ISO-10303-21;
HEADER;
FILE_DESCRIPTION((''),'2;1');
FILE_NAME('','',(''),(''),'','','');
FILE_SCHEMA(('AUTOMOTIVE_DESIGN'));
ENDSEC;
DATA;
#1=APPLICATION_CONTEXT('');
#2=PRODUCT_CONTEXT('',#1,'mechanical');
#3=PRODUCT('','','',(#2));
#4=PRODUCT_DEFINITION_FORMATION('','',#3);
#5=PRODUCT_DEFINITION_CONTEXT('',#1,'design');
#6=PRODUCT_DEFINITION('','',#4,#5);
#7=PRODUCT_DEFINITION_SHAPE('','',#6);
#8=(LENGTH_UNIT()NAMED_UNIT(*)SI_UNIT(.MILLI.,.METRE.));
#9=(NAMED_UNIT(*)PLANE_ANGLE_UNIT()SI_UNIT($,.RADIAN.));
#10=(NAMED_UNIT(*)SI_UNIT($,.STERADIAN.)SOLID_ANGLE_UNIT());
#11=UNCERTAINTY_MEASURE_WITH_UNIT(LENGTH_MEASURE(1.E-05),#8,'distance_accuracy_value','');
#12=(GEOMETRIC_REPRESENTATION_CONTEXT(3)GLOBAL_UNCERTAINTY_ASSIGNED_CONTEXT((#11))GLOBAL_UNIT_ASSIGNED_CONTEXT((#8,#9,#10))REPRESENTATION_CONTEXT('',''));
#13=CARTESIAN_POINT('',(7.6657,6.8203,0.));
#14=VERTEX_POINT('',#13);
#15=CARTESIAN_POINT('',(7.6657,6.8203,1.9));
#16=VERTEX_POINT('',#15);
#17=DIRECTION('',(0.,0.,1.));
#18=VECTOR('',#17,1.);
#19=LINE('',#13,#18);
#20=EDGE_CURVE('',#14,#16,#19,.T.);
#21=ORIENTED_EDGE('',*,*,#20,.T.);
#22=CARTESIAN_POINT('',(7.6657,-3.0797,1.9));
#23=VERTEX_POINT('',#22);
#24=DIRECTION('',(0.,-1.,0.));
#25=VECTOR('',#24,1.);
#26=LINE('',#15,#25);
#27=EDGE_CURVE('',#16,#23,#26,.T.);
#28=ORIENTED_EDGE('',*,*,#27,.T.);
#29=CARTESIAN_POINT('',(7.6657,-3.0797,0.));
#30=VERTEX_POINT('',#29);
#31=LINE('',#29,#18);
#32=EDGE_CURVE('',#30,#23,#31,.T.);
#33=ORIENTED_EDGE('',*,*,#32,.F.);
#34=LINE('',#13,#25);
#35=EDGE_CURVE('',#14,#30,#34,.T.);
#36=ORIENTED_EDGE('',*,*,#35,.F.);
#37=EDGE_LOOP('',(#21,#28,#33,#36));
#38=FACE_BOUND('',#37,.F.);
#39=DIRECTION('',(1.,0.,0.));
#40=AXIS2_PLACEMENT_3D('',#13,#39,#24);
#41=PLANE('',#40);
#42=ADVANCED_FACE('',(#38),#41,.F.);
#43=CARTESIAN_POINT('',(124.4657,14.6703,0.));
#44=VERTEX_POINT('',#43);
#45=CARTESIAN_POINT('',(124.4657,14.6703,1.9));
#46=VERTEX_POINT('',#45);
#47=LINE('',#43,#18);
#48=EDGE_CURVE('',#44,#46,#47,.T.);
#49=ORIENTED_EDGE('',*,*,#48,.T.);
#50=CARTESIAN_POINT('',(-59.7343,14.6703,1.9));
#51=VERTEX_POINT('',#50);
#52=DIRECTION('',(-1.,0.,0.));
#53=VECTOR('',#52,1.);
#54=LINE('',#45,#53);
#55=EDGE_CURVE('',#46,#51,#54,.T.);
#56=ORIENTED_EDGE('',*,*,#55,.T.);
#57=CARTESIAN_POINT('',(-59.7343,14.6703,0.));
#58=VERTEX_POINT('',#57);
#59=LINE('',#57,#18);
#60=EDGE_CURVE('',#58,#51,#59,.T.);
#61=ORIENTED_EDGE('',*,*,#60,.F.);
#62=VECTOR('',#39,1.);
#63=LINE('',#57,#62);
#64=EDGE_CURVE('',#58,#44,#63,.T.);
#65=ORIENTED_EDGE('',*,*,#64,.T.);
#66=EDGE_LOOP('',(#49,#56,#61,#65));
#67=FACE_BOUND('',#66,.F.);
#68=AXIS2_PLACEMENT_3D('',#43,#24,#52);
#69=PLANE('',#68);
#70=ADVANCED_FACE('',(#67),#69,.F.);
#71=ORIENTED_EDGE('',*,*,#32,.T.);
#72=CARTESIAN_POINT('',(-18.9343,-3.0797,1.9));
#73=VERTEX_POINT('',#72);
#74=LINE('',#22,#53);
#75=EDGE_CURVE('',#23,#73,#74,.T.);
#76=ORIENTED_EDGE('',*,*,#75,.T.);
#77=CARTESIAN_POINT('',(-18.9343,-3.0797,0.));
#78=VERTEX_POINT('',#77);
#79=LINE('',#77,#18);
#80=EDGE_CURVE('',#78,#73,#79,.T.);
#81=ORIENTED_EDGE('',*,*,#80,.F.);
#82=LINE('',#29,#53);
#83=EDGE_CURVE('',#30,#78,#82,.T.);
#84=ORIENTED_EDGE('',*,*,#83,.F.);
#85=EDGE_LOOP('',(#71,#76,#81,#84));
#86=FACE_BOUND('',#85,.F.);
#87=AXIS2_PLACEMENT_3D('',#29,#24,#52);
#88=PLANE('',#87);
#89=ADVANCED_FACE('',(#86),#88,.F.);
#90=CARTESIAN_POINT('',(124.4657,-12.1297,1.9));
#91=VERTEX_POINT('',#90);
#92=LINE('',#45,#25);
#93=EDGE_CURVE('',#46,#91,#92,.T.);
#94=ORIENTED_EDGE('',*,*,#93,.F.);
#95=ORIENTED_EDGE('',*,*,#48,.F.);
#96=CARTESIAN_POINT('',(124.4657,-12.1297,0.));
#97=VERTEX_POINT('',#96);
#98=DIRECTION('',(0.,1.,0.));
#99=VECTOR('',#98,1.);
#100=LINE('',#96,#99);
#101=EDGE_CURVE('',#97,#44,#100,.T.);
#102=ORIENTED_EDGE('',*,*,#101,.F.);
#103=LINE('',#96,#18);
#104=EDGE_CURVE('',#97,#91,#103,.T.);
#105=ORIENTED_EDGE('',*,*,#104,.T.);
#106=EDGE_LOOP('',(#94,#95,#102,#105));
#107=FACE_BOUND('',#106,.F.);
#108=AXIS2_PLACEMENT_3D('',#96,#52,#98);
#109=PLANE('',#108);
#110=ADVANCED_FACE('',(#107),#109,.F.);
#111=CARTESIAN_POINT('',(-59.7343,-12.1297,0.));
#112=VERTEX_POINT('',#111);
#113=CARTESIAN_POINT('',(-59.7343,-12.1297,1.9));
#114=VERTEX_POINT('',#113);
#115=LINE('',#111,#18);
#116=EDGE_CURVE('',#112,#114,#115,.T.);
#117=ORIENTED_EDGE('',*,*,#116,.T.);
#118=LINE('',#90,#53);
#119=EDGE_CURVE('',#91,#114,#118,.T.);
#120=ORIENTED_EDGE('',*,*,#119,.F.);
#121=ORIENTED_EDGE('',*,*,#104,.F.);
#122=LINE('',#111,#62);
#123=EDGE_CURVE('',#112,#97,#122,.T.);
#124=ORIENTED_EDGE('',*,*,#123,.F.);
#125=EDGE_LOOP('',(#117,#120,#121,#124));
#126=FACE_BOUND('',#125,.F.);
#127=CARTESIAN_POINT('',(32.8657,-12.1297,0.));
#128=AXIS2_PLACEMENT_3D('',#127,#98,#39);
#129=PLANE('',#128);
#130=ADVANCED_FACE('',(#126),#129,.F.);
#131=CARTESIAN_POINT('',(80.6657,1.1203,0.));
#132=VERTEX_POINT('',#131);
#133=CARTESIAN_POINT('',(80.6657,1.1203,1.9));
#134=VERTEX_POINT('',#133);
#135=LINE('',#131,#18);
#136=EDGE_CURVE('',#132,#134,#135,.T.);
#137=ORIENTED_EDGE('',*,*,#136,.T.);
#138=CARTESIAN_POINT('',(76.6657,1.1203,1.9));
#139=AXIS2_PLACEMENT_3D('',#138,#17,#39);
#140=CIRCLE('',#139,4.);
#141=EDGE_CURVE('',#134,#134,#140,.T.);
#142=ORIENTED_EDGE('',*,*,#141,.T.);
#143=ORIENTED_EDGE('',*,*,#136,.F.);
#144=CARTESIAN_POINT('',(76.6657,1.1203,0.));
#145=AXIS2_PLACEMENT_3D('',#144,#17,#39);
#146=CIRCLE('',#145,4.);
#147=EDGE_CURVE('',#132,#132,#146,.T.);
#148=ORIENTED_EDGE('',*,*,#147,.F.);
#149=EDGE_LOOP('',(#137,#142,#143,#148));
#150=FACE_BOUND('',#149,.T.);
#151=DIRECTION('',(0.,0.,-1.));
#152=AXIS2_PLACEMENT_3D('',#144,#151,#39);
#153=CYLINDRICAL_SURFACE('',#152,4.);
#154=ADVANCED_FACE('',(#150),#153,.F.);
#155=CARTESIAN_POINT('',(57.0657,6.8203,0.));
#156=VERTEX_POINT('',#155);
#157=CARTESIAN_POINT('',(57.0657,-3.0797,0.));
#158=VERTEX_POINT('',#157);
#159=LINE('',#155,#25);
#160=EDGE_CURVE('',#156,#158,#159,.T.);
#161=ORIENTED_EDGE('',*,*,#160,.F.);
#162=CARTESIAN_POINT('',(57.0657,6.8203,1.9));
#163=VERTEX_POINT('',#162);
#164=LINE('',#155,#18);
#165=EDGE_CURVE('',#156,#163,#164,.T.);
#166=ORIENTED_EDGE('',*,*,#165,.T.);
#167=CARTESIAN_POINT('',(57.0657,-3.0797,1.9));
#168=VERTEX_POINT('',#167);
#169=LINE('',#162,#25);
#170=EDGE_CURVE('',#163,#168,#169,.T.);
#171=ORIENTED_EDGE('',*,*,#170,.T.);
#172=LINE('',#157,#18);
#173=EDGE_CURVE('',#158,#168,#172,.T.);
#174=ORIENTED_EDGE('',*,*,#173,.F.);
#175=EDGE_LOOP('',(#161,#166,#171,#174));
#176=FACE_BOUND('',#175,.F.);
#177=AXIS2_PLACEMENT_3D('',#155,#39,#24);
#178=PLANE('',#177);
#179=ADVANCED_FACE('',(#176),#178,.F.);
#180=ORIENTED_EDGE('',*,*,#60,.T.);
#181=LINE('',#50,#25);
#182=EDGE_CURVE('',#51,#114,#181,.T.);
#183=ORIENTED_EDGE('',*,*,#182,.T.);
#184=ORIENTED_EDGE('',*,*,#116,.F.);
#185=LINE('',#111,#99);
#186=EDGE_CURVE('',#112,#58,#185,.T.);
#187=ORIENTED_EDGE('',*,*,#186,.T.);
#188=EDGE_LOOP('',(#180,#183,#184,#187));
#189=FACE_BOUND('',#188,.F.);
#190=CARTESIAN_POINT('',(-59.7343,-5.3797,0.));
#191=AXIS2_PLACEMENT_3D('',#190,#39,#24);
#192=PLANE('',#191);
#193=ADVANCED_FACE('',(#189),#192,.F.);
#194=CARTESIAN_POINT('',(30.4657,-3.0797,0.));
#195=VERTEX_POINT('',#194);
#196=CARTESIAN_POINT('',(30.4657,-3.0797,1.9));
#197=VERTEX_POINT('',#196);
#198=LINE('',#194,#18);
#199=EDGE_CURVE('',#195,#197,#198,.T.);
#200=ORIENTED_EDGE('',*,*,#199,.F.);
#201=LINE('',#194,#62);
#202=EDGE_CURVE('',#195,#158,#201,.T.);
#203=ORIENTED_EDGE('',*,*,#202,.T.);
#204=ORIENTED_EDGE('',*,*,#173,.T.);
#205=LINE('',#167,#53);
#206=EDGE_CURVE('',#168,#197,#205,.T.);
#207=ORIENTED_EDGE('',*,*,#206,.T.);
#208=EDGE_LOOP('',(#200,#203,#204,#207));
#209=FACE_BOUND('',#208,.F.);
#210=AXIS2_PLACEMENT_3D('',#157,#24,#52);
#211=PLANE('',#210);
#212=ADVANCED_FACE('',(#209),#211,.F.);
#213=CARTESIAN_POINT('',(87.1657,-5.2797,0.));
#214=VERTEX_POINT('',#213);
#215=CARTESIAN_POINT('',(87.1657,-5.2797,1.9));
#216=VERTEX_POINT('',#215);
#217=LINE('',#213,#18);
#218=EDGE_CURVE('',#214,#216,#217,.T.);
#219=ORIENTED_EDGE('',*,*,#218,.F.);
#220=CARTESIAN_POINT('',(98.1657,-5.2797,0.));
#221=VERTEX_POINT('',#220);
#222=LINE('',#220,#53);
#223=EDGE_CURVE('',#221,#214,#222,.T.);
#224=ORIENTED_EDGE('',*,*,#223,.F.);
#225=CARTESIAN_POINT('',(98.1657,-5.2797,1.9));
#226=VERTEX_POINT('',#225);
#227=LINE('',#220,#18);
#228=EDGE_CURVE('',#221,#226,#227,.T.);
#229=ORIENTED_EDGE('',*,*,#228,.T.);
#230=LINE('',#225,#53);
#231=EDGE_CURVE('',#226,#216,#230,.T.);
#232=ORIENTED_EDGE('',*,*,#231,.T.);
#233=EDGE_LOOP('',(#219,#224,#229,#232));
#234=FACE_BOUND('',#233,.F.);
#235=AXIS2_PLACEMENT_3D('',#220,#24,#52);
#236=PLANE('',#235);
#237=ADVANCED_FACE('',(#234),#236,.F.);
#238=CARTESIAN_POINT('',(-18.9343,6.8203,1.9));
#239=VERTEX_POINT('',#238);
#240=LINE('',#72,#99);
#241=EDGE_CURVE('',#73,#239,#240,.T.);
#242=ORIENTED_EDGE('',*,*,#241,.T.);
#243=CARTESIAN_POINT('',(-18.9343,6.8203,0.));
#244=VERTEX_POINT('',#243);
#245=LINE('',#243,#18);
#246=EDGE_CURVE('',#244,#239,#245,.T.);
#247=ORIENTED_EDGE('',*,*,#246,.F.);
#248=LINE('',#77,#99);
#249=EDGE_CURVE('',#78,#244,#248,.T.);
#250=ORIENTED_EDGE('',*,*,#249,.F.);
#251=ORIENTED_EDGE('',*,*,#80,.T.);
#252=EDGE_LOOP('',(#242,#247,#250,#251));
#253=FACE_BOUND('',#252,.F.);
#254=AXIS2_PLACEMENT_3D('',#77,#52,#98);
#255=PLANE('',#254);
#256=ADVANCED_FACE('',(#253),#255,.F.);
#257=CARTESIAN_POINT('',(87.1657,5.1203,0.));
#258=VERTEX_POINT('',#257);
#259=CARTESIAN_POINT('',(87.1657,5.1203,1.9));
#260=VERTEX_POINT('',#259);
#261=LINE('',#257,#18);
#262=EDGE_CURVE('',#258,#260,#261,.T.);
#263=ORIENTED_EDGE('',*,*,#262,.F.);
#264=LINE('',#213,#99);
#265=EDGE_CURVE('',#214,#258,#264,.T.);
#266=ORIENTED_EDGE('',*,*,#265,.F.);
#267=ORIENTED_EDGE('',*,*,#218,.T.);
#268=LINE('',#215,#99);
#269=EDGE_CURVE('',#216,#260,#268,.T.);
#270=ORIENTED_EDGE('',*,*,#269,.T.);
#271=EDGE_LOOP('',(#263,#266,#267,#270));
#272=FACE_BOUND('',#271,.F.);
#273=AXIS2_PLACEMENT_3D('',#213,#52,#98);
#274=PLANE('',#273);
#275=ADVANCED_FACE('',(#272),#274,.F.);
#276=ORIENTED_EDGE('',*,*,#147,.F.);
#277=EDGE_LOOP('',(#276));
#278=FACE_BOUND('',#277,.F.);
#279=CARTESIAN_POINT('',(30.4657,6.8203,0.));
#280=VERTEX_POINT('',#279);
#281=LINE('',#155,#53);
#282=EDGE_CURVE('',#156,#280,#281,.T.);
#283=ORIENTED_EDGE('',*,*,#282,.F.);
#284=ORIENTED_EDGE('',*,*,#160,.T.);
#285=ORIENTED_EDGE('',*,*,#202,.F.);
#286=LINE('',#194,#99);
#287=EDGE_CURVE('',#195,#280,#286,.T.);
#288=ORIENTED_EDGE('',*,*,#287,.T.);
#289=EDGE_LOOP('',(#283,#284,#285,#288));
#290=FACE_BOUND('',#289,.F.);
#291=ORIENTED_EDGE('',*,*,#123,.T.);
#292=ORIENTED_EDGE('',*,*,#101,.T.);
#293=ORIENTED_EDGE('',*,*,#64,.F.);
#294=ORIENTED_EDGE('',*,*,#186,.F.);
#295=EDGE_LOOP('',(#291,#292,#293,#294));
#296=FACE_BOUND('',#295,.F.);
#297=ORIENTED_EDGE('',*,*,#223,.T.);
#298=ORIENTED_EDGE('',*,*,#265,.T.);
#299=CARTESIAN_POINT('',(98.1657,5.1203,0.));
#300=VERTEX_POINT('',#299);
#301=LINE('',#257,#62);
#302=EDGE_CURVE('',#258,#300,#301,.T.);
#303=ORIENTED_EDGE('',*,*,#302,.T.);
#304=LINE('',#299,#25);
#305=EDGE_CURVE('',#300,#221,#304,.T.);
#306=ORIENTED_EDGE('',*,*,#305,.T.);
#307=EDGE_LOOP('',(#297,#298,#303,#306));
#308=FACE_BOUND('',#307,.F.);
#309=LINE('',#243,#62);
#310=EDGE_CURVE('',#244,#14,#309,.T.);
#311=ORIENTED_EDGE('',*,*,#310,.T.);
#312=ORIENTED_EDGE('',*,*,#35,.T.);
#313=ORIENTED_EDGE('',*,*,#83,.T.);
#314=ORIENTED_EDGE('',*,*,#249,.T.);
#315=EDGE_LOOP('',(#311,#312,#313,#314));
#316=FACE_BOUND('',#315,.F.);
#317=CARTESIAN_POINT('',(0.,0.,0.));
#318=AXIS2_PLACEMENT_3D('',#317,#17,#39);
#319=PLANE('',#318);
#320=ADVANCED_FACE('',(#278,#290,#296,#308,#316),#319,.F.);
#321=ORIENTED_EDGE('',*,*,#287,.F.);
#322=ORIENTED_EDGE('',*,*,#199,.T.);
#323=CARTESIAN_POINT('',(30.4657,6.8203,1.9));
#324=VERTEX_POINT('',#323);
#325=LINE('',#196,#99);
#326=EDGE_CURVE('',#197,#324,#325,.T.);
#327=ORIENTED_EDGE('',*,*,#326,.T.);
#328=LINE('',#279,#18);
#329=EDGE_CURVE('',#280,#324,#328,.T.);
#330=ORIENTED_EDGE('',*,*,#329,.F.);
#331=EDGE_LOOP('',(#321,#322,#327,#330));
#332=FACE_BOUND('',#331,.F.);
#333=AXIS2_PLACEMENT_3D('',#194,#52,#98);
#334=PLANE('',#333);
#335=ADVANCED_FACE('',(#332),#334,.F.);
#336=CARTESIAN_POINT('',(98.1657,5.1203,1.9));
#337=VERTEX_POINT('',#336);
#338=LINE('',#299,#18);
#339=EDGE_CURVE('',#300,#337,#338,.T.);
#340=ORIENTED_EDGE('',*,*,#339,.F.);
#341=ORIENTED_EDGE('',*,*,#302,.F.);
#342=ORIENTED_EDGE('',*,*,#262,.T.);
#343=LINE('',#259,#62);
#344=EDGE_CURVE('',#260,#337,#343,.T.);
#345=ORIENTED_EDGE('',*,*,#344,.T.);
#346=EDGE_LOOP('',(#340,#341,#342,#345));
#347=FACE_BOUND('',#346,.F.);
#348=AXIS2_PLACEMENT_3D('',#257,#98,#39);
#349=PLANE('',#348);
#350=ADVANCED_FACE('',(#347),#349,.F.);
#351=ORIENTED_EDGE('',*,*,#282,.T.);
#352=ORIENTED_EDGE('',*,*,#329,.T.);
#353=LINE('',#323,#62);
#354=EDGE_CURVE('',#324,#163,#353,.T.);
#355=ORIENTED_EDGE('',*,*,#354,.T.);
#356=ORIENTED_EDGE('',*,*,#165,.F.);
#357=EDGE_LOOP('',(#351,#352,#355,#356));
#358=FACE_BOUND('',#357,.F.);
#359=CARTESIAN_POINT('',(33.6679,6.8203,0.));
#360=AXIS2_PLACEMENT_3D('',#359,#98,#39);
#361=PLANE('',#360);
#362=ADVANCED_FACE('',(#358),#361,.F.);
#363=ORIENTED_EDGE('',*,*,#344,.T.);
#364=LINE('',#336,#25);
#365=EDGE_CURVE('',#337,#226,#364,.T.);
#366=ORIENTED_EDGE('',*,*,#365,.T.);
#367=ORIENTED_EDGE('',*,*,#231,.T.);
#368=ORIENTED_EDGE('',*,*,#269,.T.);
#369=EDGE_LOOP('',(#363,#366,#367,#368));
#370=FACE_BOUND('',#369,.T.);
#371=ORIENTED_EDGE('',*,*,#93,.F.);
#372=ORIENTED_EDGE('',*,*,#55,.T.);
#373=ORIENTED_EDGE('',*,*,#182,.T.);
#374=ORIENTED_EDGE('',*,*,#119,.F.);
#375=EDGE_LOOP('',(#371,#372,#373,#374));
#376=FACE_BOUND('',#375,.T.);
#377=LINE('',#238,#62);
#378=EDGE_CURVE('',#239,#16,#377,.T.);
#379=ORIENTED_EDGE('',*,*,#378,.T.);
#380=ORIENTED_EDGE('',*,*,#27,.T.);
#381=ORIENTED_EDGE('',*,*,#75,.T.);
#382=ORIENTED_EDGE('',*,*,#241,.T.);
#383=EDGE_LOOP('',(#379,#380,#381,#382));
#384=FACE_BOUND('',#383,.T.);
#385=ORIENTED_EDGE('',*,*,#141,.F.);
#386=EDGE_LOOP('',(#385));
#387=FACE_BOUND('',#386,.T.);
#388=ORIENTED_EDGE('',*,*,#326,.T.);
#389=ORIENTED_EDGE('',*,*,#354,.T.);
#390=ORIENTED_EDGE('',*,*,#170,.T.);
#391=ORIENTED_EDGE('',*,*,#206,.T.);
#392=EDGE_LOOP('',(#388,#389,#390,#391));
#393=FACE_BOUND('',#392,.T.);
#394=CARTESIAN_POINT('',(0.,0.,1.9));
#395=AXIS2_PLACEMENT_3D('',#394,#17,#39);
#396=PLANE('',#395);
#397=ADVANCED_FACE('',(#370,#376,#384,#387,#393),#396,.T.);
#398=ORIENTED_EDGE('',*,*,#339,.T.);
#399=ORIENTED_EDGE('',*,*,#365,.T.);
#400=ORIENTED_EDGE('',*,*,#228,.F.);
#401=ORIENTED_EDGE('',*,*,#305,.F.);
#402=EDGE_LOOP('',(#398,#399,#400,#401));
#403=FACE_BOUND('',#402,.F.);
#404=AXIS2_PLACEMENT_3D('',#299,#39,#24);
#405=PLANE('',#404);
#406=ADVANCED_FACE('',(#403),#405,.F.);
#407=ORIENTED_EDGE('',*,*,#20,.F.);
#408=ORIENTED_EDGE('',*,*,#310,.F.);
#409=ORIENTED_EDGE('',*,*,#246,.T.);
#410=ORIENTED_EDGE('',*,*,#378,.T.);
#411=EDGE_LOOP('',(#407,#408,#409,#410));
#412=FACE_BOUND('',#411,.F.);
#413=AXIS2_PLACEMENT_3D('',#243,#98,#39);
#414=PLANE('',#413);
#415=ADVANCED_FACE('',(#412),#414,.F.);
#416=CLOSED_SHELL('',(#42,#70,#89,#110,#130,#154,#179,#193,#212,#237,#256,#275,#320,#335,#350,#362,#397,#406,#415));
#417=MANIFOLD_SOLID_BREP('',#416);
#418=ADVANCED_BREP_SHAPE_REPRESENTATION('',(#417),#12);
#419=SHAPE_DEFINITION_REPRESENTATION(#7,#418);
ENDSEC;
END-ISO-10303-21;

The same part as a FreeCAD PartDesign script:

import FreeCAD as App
import Part
import Sketcher

V = App.Vector
Q = App.Units.Quantity

doc = App.newDocument("Part")
params = doc.addObject("Spreadsheet::Sheet", "Params")
for row, (alias, value) in enumerate([
    ("sketch1_diameter", "8 mm"),
    ("sketch1_width", "184.2 mm"),
    ("sketch1_height", "26.8 mm"),
    ("sketch1_width2", "11 mm"),
    ("sketch1_width3", "26.6 mm"),
    ("pad1_length", "1.9 mm"),
], start=1):
    params.set(f"A{row}", alias)
    params.set(f"B{row}", "=" + value)
    params.setAlias(f"B{row}", alias)

body = doc.addObject("PartDesign::Body", "Body")

sketch1 = body.newObject("Sketcher::SketchObject", "Sketch")
sketch1.AttachmentSupport = (doc.getObject("XY_Plane"), [""])
sketch1.MapMode = "FlatFace"
sketch1.addGeometry(Part.LineSegment(V(124.4657, -12.1297, 0), V(124.4657, 14.6703, 0)), False)
sketch1.addGeometry(Part.LineSegment(V(124.4657, 14.6703, 0), V(-59.7343, 14.6703, 0)), False)
sketch1.addGeometry(Part.LineSegment(V(-59.7343, 14.6703, 0), V(-59.7343, -12.1297, 0)), False)
sketch1.addGeometry(Part.LineSegment(V(-59.7343, -12.1297, 0), V(124.4657, -12.1297, 0)), False)
sketch1.addGeometry(Part.LineSegment(V(98.1657, 5.1203, 0), V(98.1657, -5.2797, 0)), False)
sketch1.addGeometry(Part.LineSegment(V(98.1657, -5.2797, 0), V(87.1657, -5.2797, 0)), False)
sketch1.addGeometry(Part.LineSegment(V(87.1657, -5.2797, 0), V(87.1657, 5.1203, 0)), False)
sketch1.addGeometry(Part.LineSegment(V(87.1657, 5.1203, 0), V(98.1657, 5.1203, 0)), False)
sketch1.addGeometry(Part.LineSegment(V(57.0657, -3.0797, 0), V(30.4657, -3.0797, 0)), False)
sketch1.addGeometry(Part.LineSegment(V(30.4657, -3.0797, 0), V(30.4657, 6.8203, 0)), False)
sketch1.addGeometry(Part.LineSegment(V(30.4657, 6.8203, 0), V(57.0657, 6.8203, 0)), False)
sketch1.addGeometry(Part.LineSegment(V(57.0657, 6.8203, 0), V(57.0657, -3.0797, 0)), False)
sketch1.addGeometry(Part.Circle(V(76.6657, 1.1203, 0), V(0, 0, 1), 4), False)
sketch1.addGeometry(Part.LineSegment(V(7.6657, 6.8203, 0), V(7.6657, -3.0797, 0)), False)
sketch1.addGeometry(Part.LineSegment(V(7.6657, -3.0797, 0), V(-18.9343, -3.0797, 0)), False)
sketch1.addGeometry(Part.LineSegment(V(-18.9343, -3.0797, 0), V(-18.9343, 6.8203, 0)), False)
sketch1.addGeometry(Part.LineSegment(V(-18.9343, 6.8203, 0), V(7.6657, 6.8203, 0)), False)
sketch1.addConstraint(Sketcher.Constraint("Coincident", 0, 2, 1, 1))
sketch1.addConstraint(Sketcher.Constraint("Coincident", 1, 2, 2, 1))
sketch1.addConstraint(Sketcher.Constraint("Coincident", 2, 2, 3, 1))
sketch1.addConstraint(Sketcher.Constraint("Coincident", 3, 2, 0, 1))
sketch1.addConstraint(Sketcher.Constraint("Coincident", 4, 2, 5, 1))
sketch1.addConstraint(Sketcher.Constraint("Coincident", 5, 2, 6, 1))
sketch1.addConstraint(Sketcher.Constraint("Coincident", 6, 2, 7, 1))
sketch1.addConstraint(Sketcher.Constraint("Coincident", 7, 2, 4, 1))
sketch1.addConstraint(Sketcher.Constraint("Coincident", 8, 2, 9, 1))
sketch1.addConstraint(Sketcher.Constraint("Coincident", 9, 2, 10, 1))
sketch1.addConstraint(Sketcher.Constraint("Coincident", 10, 2, 11, 1))
sketch1.addConstraint(Sketcher.Constraint("Coincident", 11, 2, 8, 1))
sketch1.addConstraint(Sketcher.Constraint("Coincident", 13, 2, 14, 1))
sketch1.addConstraint(Sketcher.Constraint("Coincident", 14, 2, 15, 1))
sketch1.addConstraint(Sketcher.Constraint("Coincident", 15, 2, 16, 1))
sketch1.addConstraint(Sketcher.Constraint("Coincident", 16, 2, 13, 1))
sketch1.addConstraint(Sketcher.Constraint("Vertical", 0))
sketch1.addConstraint(Sketcher.Constraint("Horizontal", 1))
sketch1.addConstraint(Sketcher.Constraint("Vertical", 2))
sketch1.addConstraint(Sketcher.Constraint("Horizontal", 3))
sketch1.addConstraint(Sketcher.Constraint("Vertical", 4))
sketch1.addConstraint(Sketcher.Constraint("Horizontal", 5))
sketch1.addConstraint(Sketcher.Constraint("Vertical", 6))
sketch1.addConstraint(Sketcher.Constraint("Horizontal", 7))
sketch1.addConstraint(Sketcher.Constraint("Horizontal", 8))
sketch1.addConstraint(Sketcher.Constraint("Vertical", 9))
sketch1.addConstraint(Sketcher.Constraint("Horizontal", 10))
sketch1.addConstraint(Sketcher.Constraint("Vertical", 11))
sketch1.addConstraint(Sketcher.Constraint("Vertical", 13))
sketch1.addConstraint(Sketcher.Constraint("Horizontal", 14))
sketch1.addConstraint(Sketcher.Constraint("Vertical", 15))
sketch1.addConstraint(Sketcher.Constraint("Horizontal", 16))
sketch1.addConstraint(Sketcher.Constraint("Horizontal", 11, 2, 13, 2))
sketch1.addConstraint(Sketcher.Constraint("Horizontal", 10, 2, 15, 2))
sketch1.addConstraint(Sketcher.Constraint("Equal", 10, 14))
sketch1.addConstraint(Sketcher.Constraint("Diameter", 12, Q("8 mm")))
sketch1.addConstraint(Sketcher.Constraint("DistanceX", 1, 2, 1, 1, Q("184.2 mm")))
sketch1.addConstraint(Sketcher.Constraint("DistanceY", 0, 1, 0, 2, Q("26.8 mm")))
sketch1.addConstraint(Sketcher.Constraint("DistanceX", 5, 2, 5, 1, Q("11 mm")))
sketch1.addConstraint(Sketcher.Constraint("DistanceX", 8, 2, 8, 1, Q("26.6 mm")))
sketch1.addConstraint(Sketcher.Constraint("DistanceY", 4, 2, 4, 1, Q("10.4 mm")))
sketch1.addConstraint(Sketcher.Constraint("DistanceY", 9, 1, 9, 2, Q("9.9 mm")))
sketch1.addConstraint(Sketcher.Constraint("DistanceY", 12, 3, 6, 2, Q("4 mm")))
sketch1.addConstraint(Sketcher.Constraint("DistanceX", 12, 3, 0, 2, Q("47.8 mm")))
sketch1.addConstraint(Sketcher.Constraint("DistanceX", 12, 3, 4, 2, Q("21.5 mm")))
sketch1.addConstraint(Sketcher.Constraint("DistanceX", 8, 2, 12, 3, Q("46.2 mm")))
sketch1.addConstraint(Sketcher.Constraint("DistanceY", 8, 2, 12, 3, Q("4.2 mm")))
sketch1.addConstraint(Sketcher.Constraint("DistanceX", 13, 2, 8, 2, Q("22.8 mm")))
sketch1.addConstraint(Sketcher.Constraint("DistanceY", 12, 3, 0, 2, Q("13.55 mm")))
sketch1.addConstraint(Sketcher.Constraint("DistanceX", -1, 1, 12, 3, Q("76.6657 mm")))
sketch1.addConstraint(Sketcher.Constraint("DistanceY", -1, 1, 12, 3, Q("1.1203 mm")))
sketch1.setExpression("Constraints[35]", "Params.sketch1_diameter")
sketch1.setExpression("Constraints[36]", "Params.sketch1_width")
sketch1.setExpression("Constraints[37]", "Params.sketch1_height")
sketch1.setExpression("Constraints[38]", "Params.sketch1_width2")
sketch1.setExpression("Constraints[39]", "Params.sketch1_width3")
pad1 = body.newObject("PartDesign::Pad", "Pad")
pad1.Profile = sketch1
pad1.setExpression("Length", "Params.pad1_length")

doc.recompute()
